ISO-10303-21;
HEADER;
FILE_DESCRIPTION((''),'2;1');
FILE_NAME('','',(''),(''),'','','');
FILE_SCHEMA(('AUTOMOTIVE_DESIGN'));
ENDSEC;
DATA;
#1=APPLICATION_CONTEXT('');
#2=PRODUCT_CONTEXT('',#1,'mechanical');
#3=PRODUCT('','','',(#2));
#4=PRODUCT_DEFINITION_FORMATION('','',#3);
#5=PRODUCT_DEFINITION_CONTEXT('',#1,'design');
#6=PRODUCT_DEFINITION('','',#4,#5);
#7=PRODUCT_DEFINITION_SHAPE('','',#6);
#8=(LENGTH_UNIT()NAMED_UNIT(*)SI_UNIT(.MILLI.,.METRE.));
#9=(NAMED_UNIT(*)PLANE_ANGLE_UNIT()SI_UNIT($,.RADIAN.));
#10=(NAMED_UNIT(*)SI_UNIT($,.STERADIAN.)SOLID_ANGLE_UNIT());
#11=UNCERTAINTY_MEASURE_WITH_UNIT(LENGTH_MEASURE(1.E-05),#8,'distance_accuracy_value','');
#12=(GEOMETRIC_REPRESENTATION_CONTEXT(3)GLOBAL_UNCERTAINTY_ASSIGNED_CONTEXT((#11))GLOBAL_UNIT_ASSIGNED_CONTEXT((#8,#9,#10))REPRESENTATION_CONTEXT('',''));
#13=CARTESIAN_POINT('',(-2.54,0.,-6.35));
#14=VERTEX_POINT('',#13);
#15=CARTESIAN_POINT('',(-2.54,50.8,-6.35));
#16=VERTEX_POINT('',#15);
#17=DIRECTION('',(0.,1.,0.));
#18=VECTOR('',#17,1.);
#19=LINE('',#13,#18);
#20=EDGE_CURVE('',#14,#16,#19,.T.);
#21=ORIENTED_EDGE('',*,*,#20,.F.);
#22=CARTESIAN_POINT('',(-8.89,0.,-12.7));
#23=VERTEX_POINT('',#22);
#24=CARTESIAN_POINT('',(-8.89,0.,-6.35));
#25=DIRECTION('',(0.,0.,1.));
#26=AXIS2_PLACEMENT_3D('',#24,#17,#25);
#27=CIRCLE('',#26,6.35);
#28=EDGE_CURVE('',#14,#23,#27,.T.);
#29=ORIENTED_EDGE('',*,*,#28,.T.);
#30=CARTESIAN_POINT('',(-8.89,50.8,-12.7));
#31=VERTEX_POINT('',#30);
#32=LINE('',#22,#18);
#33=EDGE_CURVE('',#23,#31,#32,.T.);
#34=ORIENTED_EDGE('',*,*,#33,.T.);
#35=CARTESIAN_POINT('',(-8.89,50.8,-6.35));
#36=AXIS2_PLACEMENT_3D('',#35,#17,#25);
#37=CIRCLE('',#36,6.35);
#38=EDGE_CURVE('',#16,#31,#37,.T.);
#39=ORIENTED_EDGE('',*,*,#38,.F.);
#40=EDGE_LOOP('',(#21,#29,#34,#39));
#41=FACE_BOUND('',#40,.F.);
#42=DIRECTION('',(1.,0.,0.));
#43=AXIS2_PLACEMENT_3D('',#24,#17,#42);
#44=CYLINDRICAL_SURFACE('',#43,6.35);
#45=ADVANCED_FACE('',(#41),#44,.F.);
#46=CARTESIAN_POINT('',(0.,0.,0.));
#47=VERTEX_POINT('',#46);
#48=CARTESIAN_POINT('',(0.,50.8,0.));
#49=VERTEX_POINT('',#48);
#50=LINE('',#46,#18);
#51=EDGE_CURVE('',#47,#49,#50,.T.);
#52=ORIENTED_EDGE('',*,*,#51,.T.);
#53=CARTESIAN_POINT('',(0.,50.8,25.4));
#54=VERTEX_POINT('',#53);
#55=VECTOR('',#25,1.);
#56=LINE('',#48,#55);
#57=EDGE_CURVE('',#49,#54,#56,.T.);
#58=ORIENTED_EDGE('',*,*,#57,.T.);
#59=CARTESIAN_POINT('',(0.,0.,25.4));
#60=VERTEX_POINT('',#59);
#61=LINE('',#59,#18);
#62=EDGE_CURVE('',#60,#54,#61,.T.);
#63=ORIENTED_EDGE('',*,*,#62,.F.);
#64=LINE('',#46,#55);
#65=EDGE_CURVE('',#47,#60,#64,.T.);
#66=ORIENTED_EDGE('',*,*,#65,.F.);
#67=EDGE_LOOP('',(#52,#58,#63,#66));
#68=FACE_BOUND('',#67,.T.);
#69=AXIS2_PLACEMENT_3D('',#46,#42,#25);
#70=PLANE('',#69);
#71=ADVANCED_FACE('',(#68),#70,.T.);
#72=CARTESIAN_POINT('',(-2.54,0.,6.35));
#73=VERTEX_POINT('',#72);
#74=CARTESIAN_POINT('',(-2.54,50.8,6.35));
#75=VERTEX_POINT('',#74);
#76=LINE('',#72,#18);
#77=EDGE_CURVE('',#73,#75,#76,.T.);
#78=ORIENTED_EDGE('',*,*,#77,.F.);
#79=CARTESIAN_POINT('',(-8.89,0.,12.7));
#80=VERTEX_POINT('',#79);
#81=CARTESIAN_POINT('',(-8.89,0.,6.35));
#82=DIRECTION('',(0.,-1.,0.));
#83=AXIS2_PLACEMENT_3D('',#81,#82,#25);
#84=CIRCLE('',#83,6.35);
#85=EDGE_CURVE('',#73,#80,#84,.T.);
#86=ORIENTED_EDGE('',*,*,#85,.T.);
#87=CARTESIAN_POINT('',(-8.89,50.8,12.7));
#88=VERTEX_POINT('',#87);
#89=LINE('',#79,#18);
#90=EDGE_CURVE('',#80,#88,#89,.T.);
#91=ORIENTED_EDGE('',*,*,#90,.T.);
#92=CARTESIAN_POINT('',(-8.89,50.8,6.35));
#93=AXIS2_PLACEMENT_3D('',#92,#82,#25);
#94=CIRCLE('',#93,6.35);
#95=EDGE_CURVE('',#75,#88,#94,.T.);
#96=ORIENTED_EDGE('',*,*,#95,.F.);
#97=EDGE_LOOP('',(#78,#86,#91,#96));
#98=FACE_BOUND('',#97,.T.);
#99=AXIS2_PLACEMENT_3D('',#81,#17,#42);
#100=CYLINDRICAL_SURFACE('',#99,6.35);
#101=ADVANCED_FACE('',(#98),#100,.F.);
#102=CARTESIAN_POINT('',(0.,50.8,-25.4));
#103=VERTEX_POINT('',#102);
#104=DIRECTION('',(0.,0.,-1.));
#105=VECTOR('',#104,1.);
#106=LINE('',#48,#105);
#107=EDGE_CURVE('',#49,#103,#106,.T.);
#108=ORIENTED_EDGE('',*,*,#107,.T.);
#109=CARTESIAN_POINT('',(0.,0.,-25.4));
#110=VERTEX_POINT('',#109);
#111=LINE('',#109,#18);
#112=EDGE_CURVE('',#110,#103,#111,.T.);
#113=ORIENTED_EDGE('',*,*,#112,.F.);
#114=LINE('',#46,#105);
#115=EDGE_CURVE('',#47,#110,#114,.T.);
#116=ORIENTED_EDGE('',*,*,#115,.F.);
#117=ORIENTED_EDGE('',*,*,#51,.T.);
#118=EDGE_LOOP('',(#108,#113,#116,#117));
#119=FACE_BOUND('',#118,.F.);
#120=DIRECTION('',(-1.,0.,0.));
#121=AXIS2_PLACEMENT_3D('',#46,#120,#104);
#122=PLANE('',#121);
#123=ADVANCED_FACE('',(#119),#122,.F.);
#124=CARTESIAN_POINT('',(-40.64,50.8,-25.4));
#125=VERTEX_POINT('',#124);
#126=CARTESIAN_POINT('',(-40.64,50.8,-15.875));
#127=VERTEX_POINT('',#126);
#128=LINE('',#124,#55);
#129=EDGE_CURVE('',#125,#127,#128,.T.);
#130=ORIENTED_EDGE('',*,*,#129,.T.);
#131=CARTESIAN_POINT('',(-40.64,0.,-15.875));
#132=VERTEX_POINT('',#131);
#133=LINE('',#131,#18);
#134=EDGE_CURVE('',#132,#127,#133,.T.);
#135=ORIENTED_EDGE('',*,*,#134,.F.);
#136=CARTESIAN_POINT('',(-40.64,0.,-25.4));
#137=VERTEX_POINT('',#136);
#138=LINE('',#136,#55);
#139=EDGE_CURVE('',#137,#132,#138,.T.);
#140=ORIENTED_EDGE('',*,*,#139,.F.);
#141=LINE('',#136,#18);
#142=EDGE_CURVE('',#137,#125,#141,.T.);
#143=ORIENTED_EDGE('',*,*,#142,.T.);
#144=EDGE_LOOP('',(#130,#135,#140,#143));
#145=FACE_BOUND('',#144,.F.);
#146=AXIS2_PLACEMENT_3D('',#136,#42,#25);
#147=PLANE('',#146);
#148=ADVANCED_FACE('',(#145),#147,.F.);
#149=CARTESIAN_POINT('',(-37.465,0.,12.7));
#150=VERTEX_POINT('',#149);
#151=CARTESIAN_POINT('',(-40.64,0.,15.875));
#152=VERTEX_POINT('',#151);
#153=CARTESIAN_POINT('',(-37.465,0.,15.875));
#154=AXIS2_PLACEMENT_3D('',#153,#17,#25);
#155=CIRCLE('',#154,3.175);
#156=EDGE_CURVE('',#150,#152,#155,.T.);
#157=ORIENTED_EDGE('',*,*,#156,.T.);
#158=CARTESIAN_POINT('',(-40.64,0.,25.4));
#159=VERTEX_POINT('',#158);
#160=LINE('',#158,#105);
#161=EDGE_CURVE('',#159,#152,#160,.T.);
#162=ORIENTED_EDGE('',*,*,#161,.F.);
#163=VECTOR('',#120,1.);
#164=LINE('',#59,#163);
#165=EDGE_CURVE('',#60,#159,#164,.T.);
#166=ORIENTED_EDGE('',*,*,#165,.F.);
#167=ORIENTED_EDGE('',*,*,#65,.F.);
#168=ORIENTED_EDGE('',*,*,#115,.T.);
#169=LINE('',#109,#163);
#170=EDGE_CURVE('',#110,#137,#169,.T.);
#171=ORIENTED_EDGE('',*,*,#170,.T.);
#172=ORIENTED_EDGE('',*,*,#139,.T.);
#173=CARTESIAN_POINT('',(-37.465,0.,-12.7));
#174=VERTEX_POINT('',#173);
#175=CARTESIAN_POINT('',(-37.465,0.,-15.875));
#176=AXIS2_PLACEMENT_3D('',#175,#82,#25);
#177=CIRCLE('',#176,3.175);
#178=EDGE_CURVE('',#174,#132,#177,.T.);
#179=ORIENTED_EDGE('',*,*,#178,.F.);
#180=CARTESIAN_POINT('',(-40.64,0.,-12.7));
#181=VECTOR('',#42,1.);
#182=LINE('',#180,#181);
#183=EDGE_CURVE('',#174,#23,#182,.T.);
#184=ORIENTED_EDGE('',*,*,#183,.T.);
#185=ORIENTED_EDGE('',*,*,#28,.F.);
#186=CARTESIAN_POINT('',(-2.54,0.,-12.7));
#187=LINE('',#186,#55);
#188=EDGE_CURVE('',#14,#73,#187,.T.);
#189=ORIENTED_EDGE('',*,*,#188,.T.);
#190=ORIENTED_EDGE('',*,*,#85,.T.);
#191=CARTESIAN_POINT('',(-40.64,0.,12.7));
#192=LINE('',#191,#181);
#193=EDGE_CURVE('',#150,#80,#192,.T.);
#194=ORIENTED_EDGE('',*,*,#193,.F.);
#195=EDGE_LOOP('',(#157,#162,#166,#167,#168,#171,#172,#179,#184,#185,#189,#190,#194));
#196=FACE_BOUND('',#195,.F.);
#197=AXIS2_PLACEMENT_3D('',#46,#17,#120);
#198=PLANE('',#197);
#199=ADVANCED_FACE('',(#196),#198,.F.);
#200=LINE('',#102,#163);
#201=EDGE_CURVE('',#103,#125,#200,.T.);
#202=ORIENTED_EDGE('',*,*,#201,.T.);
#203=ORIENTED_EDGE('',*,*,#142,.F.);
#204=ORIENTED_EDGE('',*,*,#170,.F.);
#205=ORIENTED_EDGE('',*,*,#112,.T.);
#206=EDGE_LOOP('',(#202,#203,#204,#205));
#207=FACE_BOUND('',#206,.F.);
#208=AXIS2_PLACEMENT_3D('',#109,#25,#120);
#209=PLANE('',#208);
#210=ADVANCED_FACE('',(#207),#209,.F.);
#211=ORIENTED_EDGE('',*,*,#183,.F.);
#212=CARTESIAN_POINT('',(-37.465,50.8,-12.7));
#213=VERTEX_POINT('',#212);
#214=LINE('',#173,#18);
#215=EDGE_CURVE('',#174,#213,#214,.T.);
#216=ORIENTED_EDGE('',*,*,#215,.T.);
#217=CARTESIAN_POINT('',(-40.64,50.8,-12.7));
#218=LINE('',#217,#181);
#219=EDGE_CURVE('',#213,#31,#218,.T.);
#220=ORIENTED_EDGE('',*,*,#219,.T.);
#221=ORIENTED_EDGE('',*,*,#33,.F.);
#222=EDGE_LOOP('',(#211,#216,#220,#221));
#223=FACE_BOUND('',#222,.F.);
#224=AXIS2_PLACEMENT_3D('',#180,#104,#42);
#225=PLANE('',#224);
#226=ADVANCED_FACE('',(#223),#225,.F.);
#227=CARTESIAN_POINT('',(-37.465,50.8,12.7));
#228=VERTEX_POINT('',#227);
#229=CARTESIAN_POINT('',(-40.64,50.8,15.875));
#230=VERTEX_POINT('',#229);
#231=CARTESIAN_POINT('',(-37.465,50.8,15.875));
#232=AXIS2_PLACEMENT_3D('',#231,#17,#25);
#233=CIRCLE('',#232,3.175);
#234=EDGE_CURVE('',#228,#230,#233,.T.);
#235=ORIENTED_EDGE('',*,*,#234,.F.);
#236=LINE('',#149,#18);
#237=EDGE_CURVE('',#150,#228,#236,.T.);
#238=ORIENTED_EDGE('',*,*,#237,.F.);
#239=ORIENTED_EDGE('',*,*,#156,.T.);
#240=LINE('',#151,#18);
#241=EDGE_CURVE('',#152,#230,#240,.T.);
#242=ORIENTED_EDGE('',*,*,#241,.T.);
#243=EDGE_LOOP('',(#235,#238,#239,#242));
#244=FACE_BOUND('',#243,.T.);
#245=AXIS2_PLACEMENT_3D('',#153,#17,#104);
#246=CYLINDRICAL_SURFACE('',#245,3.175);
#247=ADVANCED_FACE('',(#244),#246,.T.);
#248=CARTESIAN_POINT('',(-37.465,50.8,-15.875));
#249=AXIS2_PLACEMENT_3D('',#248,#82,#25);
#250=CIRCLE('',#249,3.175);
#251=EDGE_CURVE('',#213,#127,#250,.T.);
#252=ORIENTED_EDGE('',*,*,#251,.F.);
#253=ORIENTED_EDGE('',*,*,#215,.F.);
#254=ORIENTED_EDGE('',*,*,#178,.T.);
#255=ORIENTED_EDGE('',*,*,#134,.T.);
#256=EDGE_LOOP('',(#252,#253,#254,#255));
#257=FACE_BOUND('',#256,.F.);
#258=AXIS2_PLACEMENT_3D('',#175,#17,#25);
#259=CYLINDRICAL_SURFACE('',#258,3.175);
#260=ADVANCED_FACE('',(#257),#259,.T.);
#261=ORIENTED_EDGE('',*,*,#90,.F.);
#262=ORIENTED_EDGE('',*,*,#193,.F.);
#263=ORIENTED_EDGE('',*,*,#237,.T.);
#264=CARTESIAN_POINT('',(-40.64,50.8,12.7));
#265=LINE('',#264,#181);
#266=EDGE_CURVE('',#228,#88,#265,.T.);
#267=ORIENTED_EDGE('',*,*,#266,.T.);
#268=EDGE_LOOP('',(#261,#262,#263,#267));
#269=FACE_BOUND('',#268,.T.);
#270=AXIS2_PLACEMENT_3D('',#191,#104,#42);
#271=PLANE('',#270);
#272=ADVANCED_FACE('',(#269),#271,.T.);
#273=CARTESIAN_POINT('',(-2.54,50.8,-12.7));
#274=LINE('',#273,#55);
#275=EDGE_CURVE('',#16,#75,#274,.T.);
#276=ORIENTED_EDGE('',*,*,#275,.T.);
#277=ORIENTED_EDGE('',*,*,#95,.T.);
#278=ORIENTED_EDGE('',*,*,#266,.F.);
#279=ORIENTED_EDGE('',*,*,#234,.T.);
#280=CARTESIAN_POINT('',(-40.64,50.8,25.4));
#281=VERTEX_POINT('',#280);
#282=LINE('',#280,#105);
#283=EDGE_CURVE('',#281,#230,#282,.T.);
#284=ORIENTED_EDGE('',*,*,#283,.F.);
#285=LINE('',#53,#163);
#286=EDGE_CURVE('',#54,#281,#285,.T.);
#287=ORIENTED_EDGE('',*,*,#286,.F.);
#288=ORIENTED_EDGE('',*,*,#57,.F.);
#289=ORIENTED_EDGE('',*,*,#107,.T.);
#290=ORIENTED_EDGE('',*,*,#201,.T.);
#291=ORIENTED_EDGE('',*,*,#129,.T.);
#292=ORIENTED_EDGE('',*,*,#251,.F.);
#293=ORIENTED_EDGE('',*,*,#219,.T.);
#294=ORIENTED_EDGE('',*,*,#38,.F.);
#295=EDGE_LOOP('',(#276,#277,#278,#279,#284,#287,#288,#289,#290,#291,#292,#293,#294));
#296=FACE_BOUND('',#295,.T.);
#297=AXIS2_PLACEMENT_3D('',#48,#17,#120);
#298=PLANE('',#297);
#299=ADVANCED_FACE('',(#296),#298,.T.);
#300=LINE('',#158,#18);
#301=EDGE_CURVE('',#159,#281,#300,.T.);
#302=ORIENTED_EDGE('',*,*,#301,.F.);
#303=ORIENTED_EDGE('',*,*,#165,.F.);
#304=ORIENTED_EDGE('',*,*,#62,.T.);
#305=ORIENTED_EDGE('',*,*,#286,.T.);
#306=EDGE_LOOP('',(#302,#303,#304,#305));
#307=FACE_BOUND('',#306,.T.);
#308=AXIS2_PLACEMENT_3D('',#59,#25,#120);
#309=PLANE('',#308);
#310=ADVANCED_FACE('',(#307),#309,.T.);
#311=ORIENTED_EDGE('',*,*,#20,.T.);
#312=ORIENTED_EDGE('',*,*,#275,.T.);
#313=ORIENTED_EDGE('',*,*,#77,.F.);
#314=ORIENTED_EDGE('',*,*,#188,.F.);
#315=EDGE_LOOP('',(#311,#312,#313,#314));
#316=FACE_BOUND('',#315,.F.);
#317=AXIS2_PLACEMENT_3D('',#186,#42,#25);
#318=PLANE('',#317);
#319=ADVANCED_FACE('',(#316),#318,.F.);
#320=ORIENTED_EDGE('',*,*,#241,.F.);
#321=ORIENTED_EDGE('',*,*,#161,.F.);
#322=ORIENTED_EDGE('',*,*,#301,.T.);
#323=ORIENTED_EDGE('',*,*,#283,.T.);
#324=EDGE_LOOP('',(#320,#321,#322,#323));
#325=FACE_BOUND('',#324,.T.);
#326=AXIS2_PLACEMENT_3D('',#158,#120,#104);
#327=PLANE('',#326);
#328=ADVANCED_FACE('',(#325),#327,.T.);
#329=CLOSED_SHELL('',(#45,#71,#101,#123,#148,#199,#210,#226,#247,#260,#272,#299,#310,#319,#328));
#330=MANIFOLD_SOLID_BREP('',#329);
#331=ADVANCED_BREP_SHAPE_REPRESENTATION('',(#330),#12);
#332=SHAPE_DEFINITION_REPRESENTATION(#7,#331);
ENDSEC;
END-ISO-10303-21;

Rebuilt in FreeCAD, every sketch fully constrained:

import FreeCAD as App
import Part
import Sketcher

V = App.Vector
Q = App.Units.Quantity


def edges_at(feature, points):
    """Names of the edges that pass closest to the given points."""
    edges = feature.Shape.Edges
    near = lambda p: min(range(len(edges)), key=lambda i: edges[i].distToShape(Part.Vertex(*p))[0])
    return sorted({f"Edge{near(p) + 1}" for p in points})

doc = App.newDocument("Part")
body = doc.addObject("PartDesign::Body", "Body")

# Sketch on XZ plane
sketch1 = body.newObject("Sketcher::SketchObject", "Sketch")
sketch1.AttachmentSupport = (doc.getObject("XZ_Plane"), [""])
sketch1.MapMode = "FlatFace"
sketch1.addGeometry([
    Part.LineSegment(V(0, 25, 0), V(0, -25, 0)),  # 0
    Part.LineSegment(V(0, -25, 0), V(-41, -25, 0)),  # 1
    Part.LineSegment(V(-41, -25, 0), V(-41, -13, 0)),  # 2
    Part.LineSegment(V(-41, -13, 0), V(-3, -13, 0)),  # 3
    Part.LineSegment(V(-3, -13, 0), V(-3, 13, 0)),  # 4
    Part.LineSegment(V(-3, 13, 0), V(-41, 13, 0)),  # 5
    Part.LineSegment(V(-41, 13, 0), V(-41, 25, 0)),  # 6
    Part.LineSegment(V(-41, 25, 0), V(0, 25, 0)),  # 7
], False)
sketch1.addConstraint([
    Sketcher.Constraint("Coincident", 0, 2, 1, 1),
    Sketcher.Constraint("Coincident", 1, 2, 2, 1),
    Sketcher.Constraint("Coincident", 2, 2, 3, 1),
    Sketcher.Constraint("Coincident", 3, 2, 4, 1),
    Sketcher.Constraint("Coincident", 4, 2, 5, 1),
    Sketcher.Constraint("Coincident", 5, 2, 6, 1),
    Sketcher.Constraint("Coincident", 6, 2, 7, 1),
    Sketcher.Constraint("Coincident", 7, 2, 0, 1),
    Sketcher.Constraint("Vertical", 0),
    Sketcher.Constraint("Horizontal", 1),
    Sketcher.Constraint("Vertical", 2),
    Sketcher.Constraint("Horizontal", 3),
    Sketcher.Constraint("Vertical", 4),
    Sketcher.Constraint("Horizontal", 5),
    Sketcher.Constraint("Vertical", 6),
    Sketcher.Constraint("Horizontal", 7),
    Sketcher.Constraint("Symmetric", 0, 2, 7, 2, -1, 1),
    Sketcher.Constraint("Symmetric", 2, 2, 5, 2, -1),
    Sketcher.Constraint("DistanceY", 4, 1, 4, 2, Q("1 in")),
    Sketcher.Constraint("DistanceX", 3, 1, 3, 2, Q("1.5 in")),
    Sketcher.Constraint("DistanceY", 2, 1, 2, 2, Q("0.5 in")),
    Sketcher.Constraint("DistanceX", 3, 2, -1, 1, Q("0.1 in")),
])
pad1 = body.newObject("PartDesign::Pad", "Pad")
pad1.Profile = sketch1
pad1.Length = Q("2 in")
pad1.Reversed = True
doc.recompute()

fillet = body.newObject("PartDesign::Fillet", "Fillet")
fillet.Base = (pad1, edges_at(pad1, [(-2.54, 25.4, -12.7)]))
fillet.Radius = Q("0.25 in")
doc.recompute()

fillet2 = body.newObject("PartDesign::Fillet", "Fillet001")
fillet2.Base = (fillet, edges_at(fillet, [(-2.54, 25.4, 12.7)]))
fillet2.Radius = Q("0.25 in")
doc.recompute()

fillet3 = body.newObject("PartDesign::Fillet", "Fillet002")
fillet3.Base = (fillet2, edges_at(fillet2, [(-40.64, 25.4, -12.7)]))
fillet3.Radius = Q("0.125 in")
doc.recompute()

fillet4 = body.newObject("PartDesign::Fillet", "Fillet003")
fillet4.Base = (fillet3, edges_at(fillet3, [(-40.64, 25.4, 12.7)]))
fillet4.Radius = Q("0.125 in")

doc.recompute()
